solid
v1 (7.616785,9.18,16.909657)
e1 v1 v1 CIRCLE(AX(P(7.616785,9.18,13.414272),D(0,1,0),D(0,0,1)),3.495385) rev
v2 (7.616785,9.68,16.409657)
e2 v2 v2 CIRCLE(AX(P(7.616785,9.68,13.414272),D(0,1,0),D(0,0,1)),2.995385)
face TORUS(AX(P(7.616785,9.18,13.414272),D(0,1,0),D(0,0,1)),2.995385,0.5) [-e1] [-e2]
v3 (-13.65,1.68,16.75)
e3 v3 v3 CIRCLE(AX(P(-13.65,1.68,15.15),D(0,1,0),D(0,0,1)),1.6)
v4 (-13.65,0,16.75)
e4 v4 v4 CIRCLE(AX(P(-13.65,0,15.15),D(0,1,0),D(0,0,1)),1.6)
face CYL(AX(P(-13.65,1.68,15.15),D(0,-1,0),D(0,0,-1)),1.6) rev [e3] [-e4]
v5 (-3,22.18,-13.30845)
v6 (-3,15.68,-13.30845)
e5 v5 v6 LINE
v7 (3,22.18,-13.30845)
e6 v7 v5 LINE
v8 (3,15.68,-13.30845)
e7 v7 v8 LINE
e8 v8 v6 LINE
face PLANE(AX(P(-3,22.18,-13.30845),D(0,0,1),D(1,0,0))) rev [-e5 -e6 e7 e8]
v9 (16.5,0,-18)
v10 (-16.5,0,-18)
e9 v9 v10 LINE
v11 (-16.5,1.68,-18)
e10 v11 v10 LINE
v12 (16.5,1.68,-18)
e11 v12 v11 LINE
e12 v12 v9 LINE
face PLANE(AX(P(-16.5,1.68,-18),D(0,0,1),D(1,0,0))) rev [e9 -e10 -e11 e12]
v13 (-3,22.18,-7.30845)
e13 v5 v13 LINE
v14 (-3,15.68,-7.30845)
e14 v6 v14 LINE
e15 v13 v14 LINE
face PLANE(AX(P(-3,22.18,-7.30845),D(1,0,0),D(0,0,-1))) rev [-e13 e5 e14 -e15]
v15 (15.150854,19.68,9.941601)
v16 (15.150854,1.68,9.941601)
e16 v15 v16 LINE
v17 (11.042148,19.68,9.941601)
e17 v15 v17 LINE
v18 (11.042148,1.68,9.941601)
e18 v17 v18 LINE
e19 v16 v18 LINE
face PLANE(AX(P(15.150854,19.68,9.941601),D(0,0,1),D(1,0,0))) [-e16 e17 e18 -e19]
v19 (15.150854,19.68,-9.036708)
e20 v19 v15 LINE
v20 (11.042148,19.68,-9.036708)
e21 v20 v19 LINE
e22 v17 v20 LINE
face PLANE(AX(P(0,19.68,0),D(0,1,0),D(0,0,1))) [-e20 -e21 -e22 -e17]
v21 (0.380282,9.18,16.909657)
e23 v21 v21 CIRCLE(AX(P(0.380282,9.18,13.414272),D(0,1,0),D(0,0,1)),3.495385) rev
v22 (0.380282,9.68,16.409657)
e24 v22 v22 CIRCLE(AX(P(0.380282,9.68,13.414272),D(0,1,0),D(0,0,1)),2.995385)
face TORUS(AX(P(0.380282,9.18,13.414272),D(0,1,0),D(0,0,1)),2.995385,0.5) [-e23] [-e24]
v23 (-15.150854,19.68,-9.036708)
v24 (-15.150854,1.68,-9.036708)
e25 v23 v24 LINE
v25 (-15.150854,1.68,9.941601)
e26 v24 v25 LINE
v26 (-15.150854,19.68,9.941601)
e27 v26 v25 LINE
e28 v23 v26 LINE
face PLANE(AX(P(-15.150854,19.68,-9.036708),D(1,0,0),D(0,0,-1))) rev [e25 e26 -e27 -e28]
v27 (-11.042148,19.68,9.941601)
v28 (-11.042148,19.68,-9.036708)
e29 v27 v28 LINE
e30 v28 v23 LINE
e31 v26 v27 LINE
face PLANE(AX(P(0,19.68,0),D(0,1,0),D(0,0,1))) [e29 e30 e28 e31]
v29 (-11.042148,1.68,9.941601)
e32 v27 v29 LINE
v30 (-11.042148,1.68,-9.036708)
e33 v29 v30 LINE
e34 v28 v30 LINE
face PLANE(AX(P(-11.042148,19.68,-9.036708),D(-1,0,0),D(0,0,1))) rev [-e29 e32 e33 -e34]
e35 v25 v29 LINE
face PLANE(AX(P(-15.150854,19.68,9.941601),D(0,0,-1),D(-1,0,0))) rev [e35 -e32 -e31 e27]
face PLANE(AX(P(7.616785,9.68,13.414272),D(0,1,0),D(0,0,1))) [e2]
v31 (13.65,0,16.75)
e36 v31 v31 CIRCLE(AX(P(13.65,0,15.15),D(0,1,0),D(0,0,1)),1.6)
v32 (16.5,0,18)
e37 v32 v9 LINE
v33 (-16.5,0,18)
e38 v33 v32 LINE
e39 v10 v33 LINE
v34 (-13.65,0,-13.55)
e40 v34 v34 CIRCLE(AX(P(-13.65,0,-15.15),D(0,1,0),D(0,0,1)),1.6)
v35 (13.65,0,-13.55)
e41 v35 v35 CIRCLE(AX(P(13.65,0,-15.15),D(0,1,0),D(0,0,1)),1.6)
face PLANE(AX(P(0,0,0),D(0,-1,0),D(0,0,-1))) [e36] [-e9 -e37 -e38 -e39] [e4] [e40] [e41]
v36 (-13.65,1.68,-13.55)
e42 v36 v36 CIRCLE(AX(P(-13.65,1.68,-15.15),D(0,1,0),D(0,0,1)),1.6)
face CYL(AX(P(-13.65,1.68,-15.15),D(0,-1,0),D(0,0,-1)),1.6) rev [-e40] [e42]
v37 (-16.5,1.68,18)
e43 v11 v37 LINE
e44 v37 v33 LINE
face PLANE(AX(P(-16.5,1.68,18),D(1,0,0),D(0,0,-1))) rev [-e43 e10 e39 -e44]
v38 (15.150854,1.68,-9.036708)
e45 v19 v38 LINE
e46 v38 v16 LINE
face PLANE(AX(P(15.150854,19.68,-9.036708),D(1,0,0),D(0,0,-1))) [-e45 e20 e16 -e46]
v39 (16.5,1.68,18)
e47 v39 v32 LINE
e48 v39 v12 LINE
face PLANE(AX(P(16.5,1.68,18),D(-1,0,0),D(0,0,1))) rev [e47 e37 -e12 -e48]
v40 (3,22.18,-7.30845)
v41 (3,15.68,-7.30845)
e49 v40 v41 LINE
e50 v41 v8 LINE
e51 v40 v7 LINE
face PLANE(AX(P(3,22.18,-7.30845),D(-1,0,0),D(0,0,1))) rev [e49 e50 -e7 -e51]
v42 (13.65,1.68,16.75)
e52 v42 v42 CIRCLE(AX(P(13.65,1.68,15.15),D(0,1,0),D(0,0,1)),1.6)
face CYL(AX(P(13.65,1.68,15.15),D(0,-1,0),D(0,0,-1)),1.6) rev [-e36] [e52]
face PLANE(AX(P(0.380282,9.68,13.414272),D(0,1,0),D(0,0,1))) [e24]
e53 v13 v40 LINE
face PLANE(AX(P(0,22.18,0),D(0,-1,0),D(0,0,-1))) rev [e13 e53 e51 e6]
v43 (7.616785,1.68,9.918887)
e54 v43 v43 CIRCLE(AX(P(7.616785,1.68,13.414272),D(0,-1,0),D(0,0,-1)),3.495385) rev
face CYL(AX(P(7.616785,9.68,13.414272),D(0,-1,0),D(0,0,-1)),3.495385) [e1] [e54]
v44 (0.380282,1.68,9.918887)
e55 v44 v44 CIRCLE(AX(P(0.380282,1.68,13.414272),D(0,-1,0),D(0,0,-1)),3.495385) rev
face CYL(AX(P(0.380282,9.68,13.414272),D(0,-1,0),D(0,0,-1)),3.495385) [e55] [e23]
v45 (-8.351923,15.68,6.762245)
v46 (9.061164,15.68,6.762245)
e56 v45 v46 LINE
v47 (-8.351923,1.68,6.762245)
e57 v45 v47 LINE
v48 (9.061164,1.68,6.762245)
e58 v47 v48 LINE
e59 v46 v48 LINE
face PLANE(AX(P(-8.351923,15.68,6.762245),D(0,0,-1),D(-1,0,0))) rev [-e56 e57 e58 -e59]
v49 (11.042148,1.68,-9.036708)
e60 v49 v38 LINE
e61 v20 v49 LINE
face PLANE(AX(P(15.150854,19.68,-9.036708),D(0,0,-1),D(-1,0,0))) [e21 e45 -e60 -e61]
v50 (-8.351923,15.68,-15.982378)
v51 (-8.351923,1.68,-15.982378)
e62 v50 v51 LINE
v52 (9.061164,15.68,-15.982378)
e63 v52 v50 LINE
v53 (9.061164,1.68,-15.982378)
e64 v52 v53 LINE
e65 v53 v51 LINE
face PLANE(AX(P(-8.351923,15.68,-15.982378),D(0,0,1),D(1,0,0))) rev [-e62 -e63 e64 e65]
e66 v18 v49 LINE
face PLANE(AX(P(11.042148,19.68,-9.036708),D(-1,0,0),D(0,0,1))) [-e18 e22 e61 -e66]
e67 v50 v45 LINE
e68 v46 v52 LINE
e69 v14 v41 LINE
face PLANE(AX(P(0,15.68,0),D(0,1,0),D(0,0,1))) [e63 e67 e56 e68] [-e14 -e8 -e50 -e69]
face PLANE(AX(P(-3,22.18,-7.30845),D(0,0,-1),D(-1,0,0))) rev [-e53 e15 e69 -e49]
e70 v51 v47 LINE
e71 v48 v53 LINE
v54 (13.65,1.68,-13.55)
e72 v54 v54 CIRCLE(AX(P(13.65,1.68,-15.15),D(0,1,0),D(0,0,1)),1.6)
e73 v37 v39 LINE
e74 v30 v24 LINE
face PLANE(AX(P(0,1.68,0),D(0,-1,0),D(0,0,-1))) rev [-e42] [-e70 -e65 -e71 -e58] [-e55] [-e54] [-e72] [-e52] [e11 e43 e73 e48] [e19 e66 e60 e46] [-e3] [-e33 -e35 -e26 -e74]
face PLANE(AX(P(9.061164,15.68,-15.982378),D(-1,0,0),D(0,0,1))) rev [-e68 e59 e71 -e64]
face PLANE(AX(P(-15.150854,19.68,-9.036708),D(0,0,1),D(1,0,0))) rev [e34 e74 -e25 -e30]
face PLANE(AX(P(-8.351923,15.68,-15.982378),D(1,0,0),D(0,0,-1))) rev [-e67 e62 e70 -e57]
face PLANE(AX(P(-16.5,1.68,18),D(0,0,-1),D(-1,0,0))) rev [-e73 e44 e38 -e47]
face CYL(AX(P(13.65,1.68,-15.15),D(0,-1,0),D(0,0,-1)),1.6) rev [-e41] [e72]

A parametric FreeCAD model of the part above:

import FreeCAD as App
import Part
import Sketcher

V = App.Vector


def edges_at(feature, points):
    """Names of the edges that pass closest to the given points."""
    edges = feature.Shape.Edges
    near = lambda p: min(range(len(edges)), key=lambda i: edges[i].distToShape(Part.Vertex(*p))[0])
    return sorted({f"Edge{near(p) + 1}" for p in points})


def add_polygon(sketch, points):
    """Adds a closed chain of lines whose ends are joined by coincident constraints."""
    first, n = sketch.GeometryCount, len(points)
    for a, b in zip(points, points[1:] + points[:1]):
        sketch.addGeometry(Part.LineSegment(App.Vector(*a, 0), App.Vector(*b, 0)), False)
    for i in range(n):
        sketch.addConstraint(Sketcher.Constraint("Coincident", first + i, 2, first + (i + 1) % n, 1))

doc = App.newDocument("Part")
params = doc.addObject("Spreadsheet::Sheet", "Params")
for row, (alias, value) in enumerate([
    ("sketch1_diameter", "3.2 mm"),
    ("sketch1_width", "33 mm"),
    ("sketch1_height", "36 mm"),
    ("pad1_length", "1.68 mm"),
    ("pad2_length", "14 mm"),
    ("sketch3_width", "6 mm"),
    ("pad3_length", "6.5 mm"),
    ("pad4_length", "18 mm"),
    ("pad5_length", "8 mm"),
    ("fillet_radius", "0.5 mm"),
], start=1):
    params.set(f"A{row}", alias)
    params.set(f"B{row}", "=" + value)
    params.setAlias(f"B{row}", alias)

body = doc.addObject("PartDesign::Body", "Body")

# Sketch on XZ plane
sketch1 = body.newObject("Sketcher::SketchObject", "Sketch")
sketch1.AttachmentSupport = (doc.getObject("XZ_Plane"), [""])
sketch1.MapMode = "FlatFace"
add_polygon(sketch1, [(-16.5, -18), (-16.5, 18), (16.5, 18), (16.5, -18)])  # lines 0-3
sketch1.addGeometry(Part.Circle(V(-13.7, 15.2, 0), V(0, 0, 1), 1.6), False)  # 4
sketch1.addGeometry(Part.Circle(V(13.7, 15.2, 0), V(0, 0, 1), 1.6), False)  # 5
sketch1.addGeometry(Part.Circle(V(-13.7, -15.2, 0), V(0, 0, 1), 1.6), False)  # 6
sketch1.addGeometry(Part.Circle(V(13.7, -15.2, 0), V(0, 0, 1), 1.6), False)  # 7
sketch1.addConstraint([
    Sketcher.Constraint("Vertical", 0),
    Sketcher.Constraint("Horizontal", 1),
    Sketcher.Constraint("Vertical", 2),
    Sketcher.Constraint("Horizontal", 3),
    Sketcher.Constraint("Equal", 4, 5),
    Sketcher.Constraint("Equal", 5, 6),
    Sketcher.Constraint("Equal", 6, 7),
    Sketcher.Constraint("Symmetric", 5, 3, 6, 3, -1, 1),
    Sketcher.Constraint("Symmetric", 4, 3, 7, 3, -1, 1),
    Sketcher.Constraint("Symmetric", 0, 2, 2, 2, -1, 1),
    Sketcher.Constraint("Symmetric", 4, 3, 5, 3, -2),
    Sketcher.Constraint("Diameter", 4, 3.2),
    Sketcher.Constraint("DistanceX", 1, 1, 1, 2, 33.0),
    Sketcher.Constraint("DistanceY", 0, 1, 0, 2, 36.0),
    Sketcher.Constraint("DistanceX", 4, 3, 5, 3, 27.3),
    Sketcher.Constraint("DistanceY", 6, 3, 4, 3, 30.3),
])
sketch1.setExpression("Constraints[15]", "Params.sketch1_diameter")
sketch1.setExpression("Constraints[16]", "Params.sketch1_width")
sketch1.setExpression("Constraints[17]", "Params.sketch1_height")
pad1 = body.newObject("PartDesign::Pad", "Pad")
pad1.Profile = sketch1
pad1.setExpression("Length", "Params.pad1_length")
pad1.Reversed = True

# Sketch on XZ plane
sketch2 = body.newObject("Sketcher::SketchObject", "Sketch001")
sketch2.AttachmentSupport = (doc.getObject("XZ_Plane"), [""])
sketch2.MapMode = "FlatFace"
sketch2.AttachmentOffset = App.Placement(V(0, 0, -1.68), App.Rotation())
add_polygon(sketch2, [(-8, -16), (-8, 7), (9, 7), (9, -16)])  # lines 0-3
sketch2.addConstraint([
    Sketcher.Constraint("Vertical", 0),
    Sketcher.Constraint("Horizontal", 1),
    Sketcher.Constraint("Vertical", 2),
    Sketcher.Constraint("Horizontal", 3),
    Sketcher.Constraint("DistanceX", 1, 1, 1, 2, 17.413088),
    Sketcher.Constraint("DistanceY", 0, 1, 0, 2, 22.744623),
    Sketcher.Constraint("DistanceX", 0, 2, -1, 1, 8.351923),
    Sketcher.Constraint("DistanceY", -1, 1, 0, 2, 6.762245),
])
pad2 = body.newObject("PartDesign::Pad", "Pad001")
pad2.Profile = sketch2
pad2.setExpression("Length", "Params.pad2_length")
pad2.Reversed = True

# Sketch on XZ plane
sketch3 = body.newObject("Sketcher::SketchObject", "Sketch002")
sketch3.AttachmentSupport = (doc.getObject("XZ_Plane"), [""])
sketch3.MapMode = "FlatFace"
sketch3.AttachmentOffset = App.Placement(V(0, 0, -15.68), App.Rotation())
add_polygon(sketch3, [(-3, -13), (-3, -7), (3, -7), (3, -13)])  # lines 0-3
sketch3.addConstraint([
    Sketcher.Constraint("Vertical", 0),
    Sketcher.Constraint("Horizontal", 1),
    Sketcher.Constraint("Vertical", 2),
    Sketcher.Constraint("Horizontal", 3),
    Sketcher.Constraint("Equal", 3, 0),
    Sketcher.Constraint("DistanceX", 1, 1, 1, 2, 6.0),
    Sketcher.Constraint("DistanceX", 0, 2, -1, 1, 3.0),
    Sketcher.Constraint("DistanceY", 0, 2, -1, 1, 7.30845),
])
sketch3.setExpression("Constraints[9]", "Params.sketch3_width")
pad3 = body.newObject("PartDesign::Pad", "Pad002")
pad3.Profile = sketch3
pad3.setExpression("Length", "Params.pad3_length")
pad3.Reversed = True

# Sketch on XZ plane
sketch4 = body.newObject("Sketcher::SketchObject", "Sketch003")
sketch4.AttachmentSupport = (doc.getObject("XZ_Plane"), [""])
sketch4.MapMode = "FlatFace"
sketch4.AttachmentOffset = App.Placement(V(0, 0, -1.68), App.Rotation())
add_polygon(sketch4, [(-15.2, -9), (-15.2, 9.9), (-11, 9.9), (-11, -9)])  # lines 0-3
sketch4.addConstraint([
    Sketcher.Constraint("Vertical", 0),
    Sketcher.Constraint("Horizontal", 1),
    Sketcher.Constraint("Vertical", 2),
    Sketcher.Constraint("Horizontal", 3),
    Sketcher.Constraint("DistanceY", 0, 1, 0, 2, 18.978309),
    Sketcher.Constraint("DistanceY", -1, 1, 0, 2, 9.941601),
    Sketcher.Constraint("DistanceX", 1, 1, 1, 2, 4.108706),
    Sketcher.Constraint("DistanceX", 0, 2, -1, 1, 15.150854),
])
pad4 = body.newObject("PartDesign::Pad", "Pad003")
pad4.Profile = sketch4
pad4.setExpression("Length", "Params.pad4_length")
pad4.Reversed = True
doc.recompute()

mirrored = body.newObject("PartDesign::Mirrored", "Mirrored")
mirrored.Originals = [pad4]
mirrored.MirrorPlane = (doc.getObject("YZ_Plane"), [""])
body.Tip = mirrored

# Sketch on XZ plane
sketch5 = body.newObject("Sketcher::SketchObject", "Sketch004")
sketch5.AttachmentSupport = (doc.getObject("XZ_Plane"), [""])
sketch5.MapMode = "FlatFace"
sketch5.AttachmentOffset = App.Placement(V(0, 0, -1.68), App.Rotation())
sketch5.addGeometry([
    Part.Circle(V(7.6, 13.4, 0), V(0, 0, 1), 3.5),
    Part.Circle(V(0.4, 13.4, 0), V(0, 0, 1), 3.5),
], False)
sketch5.addConstraint([
    Sketcher.Constraint("Equal", 0, 1),
    Sketcher.Constraint("Horizontal", 0, 3, 1, 3),
    Sketcher.Constraint("Diameter", 0, 6.99077),
    Sketcher.Constraint("DistanceY", -1, 1, 0, 3, 13.414272),
    Sketcher.Constraint("DistanceX", -1, 1, 0, 3, 7.616785),
    Sketcher.Constraint("DistanceX", -1, 1, 1, 3, 0.380282),
])
pad5 = body.newObject("PartDesign::Pad", "Pad004")
pad5.Profile = sketch5
pad5.setExpression("Length", "Params.pad5_length")
pad5.Reversed = True
doc.recompute()

fillet = body.newObject("PartDesign::Fillet", "Fillet")
fillet.Base = (pad5, edges_at(pad5, [(7.617, 9.68, 16.91), (0.38, 9.68, 16.91)]))
fillet.setExpression("Radius", "Params.fillet_radius")

doc.recompute()
